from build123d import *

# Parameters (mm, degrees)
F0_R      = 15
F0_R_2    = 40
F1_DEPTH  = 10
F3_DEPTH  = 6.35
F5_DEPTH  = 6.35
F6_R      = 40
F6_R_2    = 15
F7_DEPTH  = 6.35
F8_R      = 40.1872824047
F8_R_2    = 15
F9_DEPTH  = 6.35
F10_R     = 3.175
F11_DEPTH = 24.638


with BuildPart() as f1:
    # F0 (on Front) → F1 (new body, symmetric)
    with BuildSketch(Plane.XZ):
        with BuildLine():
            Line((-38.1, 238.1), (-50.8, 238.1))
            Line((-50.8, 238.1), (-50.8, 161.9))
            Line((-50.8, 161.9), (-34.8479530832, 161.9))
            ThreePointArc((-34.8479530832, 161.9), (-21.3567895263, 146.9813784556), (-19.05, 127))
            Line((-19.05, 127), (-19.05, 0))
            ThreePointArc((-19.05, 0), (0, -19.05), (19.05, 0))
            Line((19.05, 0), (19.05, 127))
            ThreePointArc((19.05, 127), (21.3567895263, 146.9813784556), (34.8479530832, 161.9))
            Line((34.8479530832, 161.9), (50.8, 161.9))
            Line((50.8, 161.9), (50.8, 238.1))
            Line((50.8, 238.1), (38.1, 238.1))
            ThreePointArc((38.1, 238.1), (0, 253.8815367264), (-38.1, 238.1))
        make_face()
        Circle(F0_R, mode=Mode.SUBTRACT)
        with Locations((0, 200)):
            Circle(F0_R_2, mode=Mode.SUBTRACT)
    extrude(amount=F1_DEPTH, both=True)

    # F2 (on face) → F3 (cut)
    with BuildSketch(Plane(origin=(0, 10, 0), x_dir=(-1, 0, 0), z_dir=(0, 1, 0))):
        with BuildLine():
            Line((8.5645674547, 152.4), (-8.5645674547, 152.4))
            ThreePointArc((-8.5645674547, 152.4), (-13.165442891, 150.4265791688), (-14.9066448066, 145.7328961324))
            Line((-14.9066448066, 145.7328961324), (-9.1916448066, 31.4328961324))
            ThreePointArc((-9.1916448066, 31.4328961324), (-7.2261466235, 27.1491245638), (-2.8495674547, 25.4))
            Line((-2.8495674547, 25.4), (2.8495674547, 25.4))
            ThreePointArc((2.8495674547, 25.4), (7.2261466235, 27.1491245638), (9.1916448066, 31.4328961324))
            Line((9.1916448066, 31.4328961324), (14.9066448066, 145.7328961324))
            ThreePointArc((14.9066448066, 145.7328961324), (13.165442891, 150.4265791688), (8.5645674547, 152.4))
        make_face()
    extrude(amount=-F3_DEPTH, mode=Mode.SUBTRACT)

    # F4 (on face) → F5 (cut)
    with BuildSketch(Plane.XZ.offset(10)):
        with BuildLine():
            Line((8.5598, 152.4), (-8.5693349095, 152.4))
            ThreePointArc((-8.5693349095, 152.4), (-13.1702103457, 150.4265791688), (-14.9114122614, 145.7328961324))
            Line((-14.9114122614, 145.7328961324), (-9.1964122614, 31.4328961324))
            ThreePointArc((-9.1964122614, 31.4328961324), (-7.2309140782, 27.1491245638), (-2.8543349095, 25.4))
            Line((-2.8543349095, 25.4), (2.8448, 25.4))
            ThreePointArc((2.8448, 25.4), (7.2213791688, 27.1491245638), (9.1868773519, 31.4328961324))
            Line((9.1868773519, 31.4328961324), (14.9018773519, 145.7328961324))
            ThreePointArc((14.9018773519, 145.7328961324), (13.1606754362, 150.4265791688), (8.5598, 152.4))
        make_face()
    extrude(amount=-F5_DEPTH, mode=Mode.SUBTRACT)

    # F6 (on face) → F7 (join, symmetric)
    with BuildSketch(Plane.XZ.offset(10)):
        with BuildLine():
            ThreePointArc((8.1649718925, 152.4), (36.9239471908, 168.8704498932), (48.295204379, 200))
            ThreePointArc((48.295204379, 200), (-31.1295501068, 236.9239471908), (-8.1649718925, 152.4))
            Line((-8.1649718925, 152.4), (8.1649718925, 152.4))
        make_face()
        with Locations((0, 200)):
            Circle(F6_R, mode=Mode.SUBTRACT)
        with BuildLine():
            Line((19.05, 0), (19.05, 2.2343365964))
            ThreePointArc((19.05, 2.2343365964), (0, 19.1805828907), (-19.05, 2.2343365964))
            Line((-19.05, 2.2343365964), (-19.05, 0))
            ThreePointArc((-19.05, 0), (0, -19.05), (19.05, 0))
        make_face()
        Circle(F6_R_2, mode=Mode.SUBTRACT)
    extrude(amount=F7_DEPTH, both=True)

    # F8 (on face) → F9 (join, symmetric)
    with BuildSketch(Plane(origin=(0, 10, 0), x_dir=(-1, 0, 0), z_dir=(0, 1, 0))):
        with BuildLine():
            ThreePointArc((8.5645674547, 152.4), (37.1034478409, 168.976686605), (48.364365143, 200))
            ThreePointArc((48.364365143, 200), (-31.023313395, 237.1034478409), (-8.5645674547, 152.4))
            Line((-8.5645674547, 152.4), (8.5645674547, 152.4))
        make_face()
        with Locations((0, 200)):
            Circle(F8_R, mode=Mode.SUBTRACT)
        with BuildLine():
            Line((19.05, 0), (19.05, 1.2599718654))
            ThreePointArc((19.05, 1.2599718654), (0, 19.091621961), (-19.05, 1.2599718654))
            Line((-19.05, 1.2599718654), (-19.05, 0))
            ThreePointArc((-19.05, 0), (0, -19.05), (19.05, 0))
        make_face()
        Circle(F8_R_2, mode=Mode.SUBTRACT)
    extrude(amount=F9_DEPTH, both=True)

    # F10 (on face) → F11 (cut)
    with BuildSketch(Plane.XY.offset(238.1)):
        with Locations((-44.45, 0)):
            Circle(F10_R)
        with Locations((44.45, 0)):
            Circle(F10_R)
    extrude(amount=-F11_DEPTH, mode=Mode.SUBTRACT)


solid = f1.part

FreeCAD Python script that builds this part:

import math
import FreeCAD as App
import Part
import Sketcher
Q = App.Units.Quantity

doc = App.newDocument("Part")
body = doc.addObject("PartDesign::Body", "Body")

# Sketch on XZ plane
sketch1 = body.newObject("Sketcher::SketchObject", "Sketch")
sketch1.AttachmentSupport = (doc.getObject("XZ_Plane"), [""])
sketch1.MapMode = "FlatFace"
sketch1.addGeometry([
    Part.LineSegment(App.Vector(-38.1, 238.1, 0), App.Vector(-50.8, 238.1, 0)),  # 0
    Part.LineSegment(App.Vector(-50.8, 238.1, 0), App.Vector(-50.8, 161.9, 0)),  # 1
    Part.LineSegment(App.Vector(-50.8, 161.9, 0), App.Vector(-34.847953, 161.9, 0)),  # 2
    Part.ArcOfCircle(Part.Circle(App.Vector(-51.378591, 133.391607, 0), App.Vector(0, 0, 1), 32.954369), math.radians(-11.183583), math.radians(59.892629)),  # 3
    Part.LineSegment(App.Vector(-19.05, 127, 0), App.Vector(-19.05, 0, 0)),  # 4
    Part.ArcOfCircle(Part.Circle(App.Vector(0, 0, 0), App.Vector(0, 0, 1), 19.05), math.radians(180), math.radians(360)),  # 5
    Part.LineSegment(App.Vector(19.05, 0, 0), App.Vector(19.05, 127, 0)),  # 6
    Part.ArcOfCircle(Part.Circle(App.Vector(51.378591, 133.391607, 0), App.Vector(0, 0, 1), 32.954369), math.radians(120.107371), math.radians(191.183583)),  # 7
    Part.LineSegment(App.Vector(34.847953, 161.9, 0), App.Vector(50.8, 161.9, 0)),  # 8
    Part.LineSegment(App.Vector(50.8, 161.9, 0), App.Vector(50.8, 238.1, 0)),  # 9
    Part.LineSegment(App.Vector(50.8, 238.1, 0), App.Vector(38.1, 238.1, 0)),  # 10
    Part.ArcOfCircle(Part.Circle(App.Vector(0, 200, 0), App.Vector(0, 0, 1), 53.881537), math.radians(45), math.radians(135)),  # 11
    Part.Circle(App.Vector(0, 0, 0), App.Vector(0, 0, 1), 15),  # 12
    Part.Circle(App.Vector(0, 200, 0), App.Vector(0, 0, 1), 40),  # 13
], False)
sketch1.addConstraint([
    Sketcher.Constraint("Coincident", 0, 2, 1, 1),
    Sketcher.Constraint("Coincident", 1, 2, 2, 1),
    Sketcher.Constraint("Coincident", 2, 2, 3, 2),
    Sketcher.Constraint("Coincident", 3, 1, 4, 1),
    Sketcher.Constraint("Tangent", 4, 2, 5, 1),
    Sketcher.Constraint("Tangent", 5, 2, 6, 1),
    Sketcher.Constraint("Coincident", 6, 2, 7, 2),
    Sketcher.Constraint("Coincident", 7, 1, 8, 1),
    Sketcher.Constraint("Coincident", 8, 2, 9, 1),
    Sketcher.Constraint("Coincident", 9, 2, 10, 1),
    Sketcher.Constraint("Coincident", 10, 2, 11, 1),
    Sketcher.Constraint("Coincident", 11, 2, 0, 1),
    Sketcher.Constraint("Horizontal", 0),
    Sketcher.Constraint("Vertical", 1),
    Sketcher.Constraint("Horizontal", 2),
    Sketcher.Constraint("Vertical", 4),
    Sketcher.Constraint("Vertical", 6),
    Sketcher.Constraint("Horizontal", 8),
    Sketcher.Constraint("Vertical", 9),
    Sketcher.Constraint("Horizontal", 10),
    Sketcher.Constraint("Coincident", 5, 3, -1, 1),
    Sketcher.Constraint("Coincident", 12, 3, -1, 1),
    Sketcher.Constraint("Coincident", 13, 3, 11, 3),
    Sketcher.Constraint("Equal", 3, 7),
    Sketcher.Constraint("Symmetric", 3, 3, 7, 3, -2),
    Sketcher.Constraint("Symmetric", 1, 2, 8, 2, -2),
    Sketcher.Constraint("Symmetric", 10, 2, 11, 2, -2),
    Sketcher.Constraint("DistanceY", 1, 2, 1, 1, Q("3 in")),
    Sketcher.Constraint("DistanceY", 4, 2, 4, 1, Q("5 in")),
    Sketcher.Constraint("Radius", 5, Q("0.75 in")),
    Sketcher.Constraint("DistanceX", 0, 2, 0, 1, Q("0.5 in")),
    Sketcher.Constraint("DistanceX", 0, 2, -1, 1, Q("2 in")),
    Sketcher.Constraint("DistanceY", 11, 3, 0, 2, Q("1.5 in")),
    Sketcher.Constraint("Diameter", 12, 30.0),
    Sketcher.Constraint("Diameter", 13, 80.0),
    Sketcher.Constraint("Radius", 3, 32.954369),
    Sketcher.Constraint("DistanceY", -1, 1, 11, 3, 200.0),
    Sketcher.Constraint("DistanceX", 2, 1, 2, 2, 15.952047),
])
pad1 = body.newObject("PartDesign::Pad", "Pad")
pad1.Profile = sketch1
pad1.Length = 20
pad1.Midplane = True

# Sketch on XZ plane
sketch2 = body.newObject("Sketcher::SketchObject", "Sketch001")
sketch2.AttachmentSupport = (doc.getObject("XZ_Plane"), [""])
sketch2.MapMode = "FlatFace"
sketch2.AttachmentOffset = App.Placement(App.Vector(0, 0, -10), App.Rotation())
sketch2.addGeometry([
    Part.LineSegment(App.Vector(-8.564567, 152.4, 0), App.Vector(8.564567, 152.4, 0)),  # 0
    Part.ArcOfCircle(Part.Circle(App.Vector(8.564567, 146.05, 0), App.Vector(0, 0, 1), 6.35), math.radians(-2.862405), math.radians(90)),  # 1
    Part.LineSegment(App.Vector(14.906645, 145.732896, 0), App.Vector(9.191645, 31.432896, 0)),  # 2
    Part.ArcOfCircle(Part.Circle(App.Vector(2.849567, 31.75, 0), App.Vector(0, 0, 1), 6.35), math.radians(-90), math.radians(-2.862405)),  # 3
    Part.LineSegment(App.Vector(2.849567, 25.4, 0), App.Vector(-2.849567, 25.4, 0)),  # 4
    Part.ArcOfCircle(Part.Circle(App.Vector(-2.849567, 31.75, 0), App.Vector(0, 0, 1), 6.35), math.radians(-177.137595), math.radians(-90)),  # 5
    Part.LineSegment(App.Vector(-9.191645, 31.432896, 0), App.Vector(-14.906645, 145.732896, 0)),  # 6
    Part.ArcOfCircle(Part.Circle(App.Vector(-8.564567, 146.05, 0), App.Vector(0, 0, 1), 6.35), math.radians(90), math.radians(182.862405)),  # 7
], False)
sketch2.addConstraint([
    Sketcher.Constraint("Tangent", 0, 2, 1, 2),
    Sketcher.Constraint("Tangent", 1, 1, 2, 1),
    Sketcher.Constraint("Tangent", 2, 2, 3, 2),
    Sketcher.Constraint("Tangent", 3, 1, 4, 1),
    Sketcher.Constraint("Tangent", 4, 2, 5, 2),
    Sketcher.Constraint("Tangent", 5, 1, 6, 1),
    Sketcher.Constraint("Tangent", 6, 2, 7, 2),
    Sketcher.Constraint("Tangent", 7, 1, 0, 1),
    Sketcher.Constraint("Horizontal", 0),
    Sketcher.Constraint("Horizontal", 4),
    Sketcher.Constraint("Equal", 1, 3),
    Sketcher.Constraint("Equal", 3, 5),
    Sketcher.Constraint("Equal", 5, 7),
    Sketcher.Constraint("Symmetric", 2, 2, 5, 1, -2),
    Sketcher.Constraint("Radius", 1, Q("0.25 in")),
    Sketcher.Constraint("DistanceY", -1, 1, 0, 2, Q("6 in")),
    Sketcher.Constraint("DistanceY", -1, 1, 3, 1, Q("1 in")),
    Sketcher.Constraint("DistanceX", 3, 3, 1, 3, Q("0.225 in")),
    Sketcher.Constraint("DistanceX", 0, 1, 0, 2, 17.129135),
])
pocket1 = body.newObject("PartDesign::Pocket", "Pocket")
pocket1.Profile = sketch2
pocket1.Length = Q("0.25 in")
pocket1.Reversed = True

# Sketch on XZ plane
sketch3 = body.newObject("Sketcher::SketchObject", "Sketch002")
sketch3.AttachmentSupport = (doc.getObject("XZ_Plane"), [""])
sketch3.MapMode = "FlatFace"
sketch3.AttachmentOffset = App.Placement(App.Vector(0, 0, 10), App.Rotation())
sketch3.addGeometry([
    Part.LineSegment(App.Vector(8.5598, 152.4, 0), App.Vector(-8.569335, 152.4, 0)),  # 0
    Part.ArcOfCircle(Part.Circle(App.Vector(-8.569335, 146.05, 0), App.Vector(0, 0, 1), 6.35), math.radians(90), math.radians(182.862405)),  # 1
    Part.LineSegment(App.Vector(-14.911412, 145.732896, 0), App.Vector(-9.196412, 31.432896, 0)),  # 2
    Part.ArcOfCircle(Part.Circle(App.Vector(-2.854335, 31.75, 0), App.Vector(0, 0, 1), 6.35), math.radians(-177.137595), math.radians(-90)),  # 3
    Part.LineSegment(App.Vector(-2.854335, 25.4, 0), App.Vector(2.8448, 25.4, 0)),  # 4
    Part.ArcOfCircle(Part.Circle(App.Vector(2.8448, 31.75, 0), App.Vector(0, 0, 1), 6.35), math.radians(-90), math.radians(-2.862405)),  # 5
    Part.LineSegment(App.Vector(9.186877, 31.432896, 0), App.Vector(14.901877, 145.732896, 0)),  # 6
    Part.ArcOfCircle(Part.Circle(App.Vector(8.5598, 146.05, 0), App.Vector(0, 0, 1), 6.35), math.radians(-2.862405), math.radians(90)),  # 7
], False)
sketch3.addConstraint([
    Sketcher.Constraint("Tangent", 0, 2, 1, 1),
    Sketcher.Constraint("Tangent", 1, 2, 2, 1),
    Sketcher.Constraint("Tangent", 2, 2, 3, 1),
    Sketcher.Constraint("Tangent", 3, 2, 4, 1),
    Sketcher.Constraint("Tangent", 4, 2, 5, 1),
    Sketcher.Constraint("Tangent", 5, 2, 6, 1),
    Sketcher.Constraint("Tangent", 6, 2, 7, 1),
    Sketcher.Constraint("Tangent", 7, 2, 0, 1),
    Sketcher.Constraint("Horizontal", 0),
    Sketcher.Constraint("Horizontal", 4),
    Sketcher.Constraint("Equal", 1, 3),
    Sketcher.Constraint("Equal", 3, 5),
    Sketcher.Constraint("Equal", 5, 7),
    Sketcher.Constraint("Horizontal", 2, 2, 5, 2),
    Sketcher.Constraint("Radius", 1, Q("0.25 in")),
    Sketcher.Constraint("DistanceY", -1, 1, 0, 2, Q("6 in")),
    Sketcher.Constraint("DistanceY", -1, 1, 3, 2, Q("1 in")),
    Sketcher.Constraint("DistanceX", -1, 1, 5, 3, Q("0.112 in")),
    Sketcher.Constraint("DistanceX", -1, 1, 7, 3, Q("0.337 in")),
    Sketcher.Constraint("DistanceX", 0, 2, 0, 1, 17.129135),
])
pocket2 = body.newObject("PartDesign::Pocket", "Pocket001")
pocket2.Profile = sketch3
pocket2.Length = Q("0.25 in")

# Sketch on XZ plane
sketch4 = body.newObject("Sketcher::SketchObject", "Sketch003")
sketch4.AttachmentSupport = (doc.getObject("XZ_Plane"), [""])
sketch4.MapMode = "FlatFace"
sketch4.AttachmentOffset = App.Placement(App.Vector(0, 0, 10), App.Rotation())
sketch4.addGeometry([
    Part.ArcOfCircle(Part.Circle(App.Vector(0, 200, 0), App.Vector(0, 0, 1), 48.295204), math.radians(-80.266608), math.radians(0)),  # 0
    Part.ArcOfCircle(Part.Circle(App.Vector(0, 200, 0), App.Vector(0, 0, 1), 48.295204), math.radians(0), math.radians(260.266608)),  # 1
    Part.LineSegment(App.Vector(-8.164972, 152.4, 0), App.Vector(8.164972, 152.4, 0)),  # 2
    Part.Circle(App.Vector(0, 200, 0), App.Vector(0, 0, 1), 40),  # 3
    Part.LineSegment(App.Vector(19.05, 0, 0), App.Vector(19.05, 2.234337, 0)),  # 4
    Part.ArcOfCircle(Part.Circle(App.Vector(0, 0, 0), App.Vector(0, 0, 1), 19.180583), math.radians(6.689545), math.radians(173.310455)),  # 5
    Part.LineSegment(App.Vector(-19.05, 2.234337, 0), App.Vector(-19.05, 0, 0)),  # 6
    Part.ArcOfCircle(Part.Circle(App.Vector(0, 0, 0), App.Vector(0, 0, 1), 19.05), math.radians(180), math.radians(360)),  # 7
    Part.Circle(App.Vector(0, 0, 0), App.Vector(0, 0, 1), 15),  # 8
], False)
sketch4.addConstraint([
    Sketcher.Constraint("Tangent", 0, 2, 1, 1),
    Sketcher.Constraint("Coincident", 1, 2, 2, 1),
    Sketcher.Constraint("Coincident", 2, 2, 0, 1),
    Sketcher.Constraint("Coincident", 4, 2, 5, 1),
    Sketcher.Constraint("Coincident", 5, 2, 6, 1),
    Sketcher.Constraint("Tangent", 6, 2, 7, 1),
    Sketcher.Constraint("Tangent", 7, 2, 4, 1),
    Sketcher.Constraint("Horizontal", 2),
    Sketcher.Constraint("Vertical", 4),
    Sketcher.Constraint("Vertical", 6),
    Sketcher.Constraint("Coincident", 5, 3, -1, 1),
    Sketcher.Constraint("Coincident", 7, 3, -1, 1),
    Sketcher.Constraint("Coincident", 8, 3, -1, 1),
    Sketcher.Constraint("Coincident", 3, 3, 0, 3),
    Sketcher.Constraint("Equal", 0, 1),
    Sketcher.Constraint("PointOnObject", 0, 3, -2),
    Sketcher.Constraint("Horizontal", 3, 3, 0, 2),
    Sketcher.Constraint("Radius", 7, Q("0.75 in")),
    Sketcher.Constraint("DistanceY", -1, 1, 1, 2, Q("6 in")),
    Sketcher.Constraint("Diameter", 3, 80.0),
    Sketcher.Constraint("Diameter", 8, 30.0),
    Sketcher.Constraint("Radius", 0, 48.295204),
    Sketcher.Constraint("Radius", 5, 19.180583),
    Sketcher.Constraint("DistanceY", -1, 1, 0, 3, 200.0),
])
pad2 = body.newObject("PartDesign::Pad", "Pad001")
pad2.Profile = sketch4
pad2.Length = Q("0.5 in")
pad2.Midplane = True

# Sketch on XZ plane
sketch5 = body.newObject("Sketcher::SketchObject", "Sketch004")
sketch5.AttachmentSupport = (doc.getObject("XZ_Plane"), [""])
sketch5.MapMode = "FlatFace"
sketch5.AttachmentOffset = App.Placement(App.Vector(0, 0, -10), App.Rotation())
sketch5.addGeometry([
    Part.ArcOfCircle(Part.Circle(App.Vector(0, 200, 0), App.Vector(0, 0, 1), 48.364365), math.radians(-79.800028), math.radians(259.800028)),  # 0
    Part.LineSegment(App.Vector(8.564567, 152.4, 0), App.Vector(-8.564567, 152.4, 0)),  # 1
    Part.Circle(App.Vector(0, 200, 0), App.Vector(0, 0, 1), 40.187282),  # 2
    Part.LineSegment(App.Vector(-19.05, 0, 0), App.Vector(-19.05, 1.259972, 0)),  # 3
    Part.ArcOfCircle(Part.Circle(App.Vector(0, 0, 0), App.Vector(0, 0, 1), 19.091622), math.radians(3.784046), math.radians(176.215954)),  # 4
    Part.LineSegment(App.Vector(19.05, 1.259972, 0), App.Vector(19.05, 0, 0)),  # 5
    Part.ArcOfCircle(Part.Circle(App.Vector(0, 0, 0), App.Vector(0, 0, 1), 19.05), math.radians(180), math.radians(360)),  # 6
    Part.Circle(App.Vector(0, 0, 0), App.Vector(0, 0, 1), 15),  # 7
], False)
sketch5.addConstraint([
    Sketcher.Constraint("Coincident", 0, 1, 1, 1),
    Sketcher.Constraint("Coincident", 1, 2, 0, 2),
    Sketcher.Constraint("Coincident", 3, 2, 4, 2),
    Sketcher.Constraint("Coincident", 4, 1, 5, 1),
    Sketcher.Constraint("Tangent", 5, 2, 6, 2),
    Sketcher.Constraint("Tangent", 6, 1, 3, 1),
    Sketcher.Constraint("Horizontal", 1),
    Sketcher.Constraint("Vertical", 3),
    Sketcher.Constraint("Vertical", 5),
    Sketcher.Constraint("Coincident", 4, 3, -1, 1),
    Sketcher.Constraint("Coincident", 6, 3, -1, 1),
    Sketcher.Constraint("Coincident", 7, 3, -1, 1),
    Sketcher.Constraint("Coincident", 2, 3, 0, 3),
    Sketcher.Constraint("PointOnObject", 0, 3, -2),
    Sketcher.Constraint("Radius", 6, Q("0.75 in")),
    Sketcher.Constraint("DistanceY", -1, 1, 0, 1, Q("6 in")),
    Sketcher.Constraint("Diameter", 7, 30.0),
    Sketcher.Constraint("Radius", 4, 19.091622),
    Sketcher.Constraint("Diameter", 2, 80.374565),
    Sketcher.Constraint("Radius", 0, 48.364365),
    Sketcher.Constraint("DistanceY", -1, 1, 0, 3, 200.0),
])
pad3 = body.newObject("PartDesign::Pad", "Pad002")
pad3.Profile = sketch5
pad3.Length = Q("0.5 in")
pad3.Midplane = True

# Sketch on XY plane
sketch6 = body.newObject("Sketcher::SketchObject", "Sketch005")
sketch6.AttachmentSupport = (doc.getObject("XY_Plane"), [""])
sketch6.MapMode = "FlatFace"
sketch6.AttachmentOffset = App.Placement(App.Vector(0, 0, 238.1), App.Rotation())
sketch6.addGeometry([
    Part.Circle(App.Vector(-44.45, 0, 0), App.Vector(0, 0, 1), 3.175),
    Part.Circle(App.Vector(44.45, 0, 0), App.Vector(0, 0, 1), 3.175),
], False)
sketch6.addConstraint([
    Sketcher.Constraint("Equal", 0, 1),
    Sketcher.Constraint("Symmetric", 0, 3, 1, 3, -1, 1),
    Sketcher.Constraint("PointOnObject", 0, 3, -1),
    Sketcher.Constraint("Diameter", 0, Q("0.25 in")),
    Sketcher.Constraint("DistanceX", 0, 3, 1, 3, Q("3.5 in")),
])
pocket3 = body.newObject("PartDesign::Pocket", "Pocket002")
pocket3.Profile = sketch6
pocket3.Length = Q("0.97 in")

doc.recompute()
